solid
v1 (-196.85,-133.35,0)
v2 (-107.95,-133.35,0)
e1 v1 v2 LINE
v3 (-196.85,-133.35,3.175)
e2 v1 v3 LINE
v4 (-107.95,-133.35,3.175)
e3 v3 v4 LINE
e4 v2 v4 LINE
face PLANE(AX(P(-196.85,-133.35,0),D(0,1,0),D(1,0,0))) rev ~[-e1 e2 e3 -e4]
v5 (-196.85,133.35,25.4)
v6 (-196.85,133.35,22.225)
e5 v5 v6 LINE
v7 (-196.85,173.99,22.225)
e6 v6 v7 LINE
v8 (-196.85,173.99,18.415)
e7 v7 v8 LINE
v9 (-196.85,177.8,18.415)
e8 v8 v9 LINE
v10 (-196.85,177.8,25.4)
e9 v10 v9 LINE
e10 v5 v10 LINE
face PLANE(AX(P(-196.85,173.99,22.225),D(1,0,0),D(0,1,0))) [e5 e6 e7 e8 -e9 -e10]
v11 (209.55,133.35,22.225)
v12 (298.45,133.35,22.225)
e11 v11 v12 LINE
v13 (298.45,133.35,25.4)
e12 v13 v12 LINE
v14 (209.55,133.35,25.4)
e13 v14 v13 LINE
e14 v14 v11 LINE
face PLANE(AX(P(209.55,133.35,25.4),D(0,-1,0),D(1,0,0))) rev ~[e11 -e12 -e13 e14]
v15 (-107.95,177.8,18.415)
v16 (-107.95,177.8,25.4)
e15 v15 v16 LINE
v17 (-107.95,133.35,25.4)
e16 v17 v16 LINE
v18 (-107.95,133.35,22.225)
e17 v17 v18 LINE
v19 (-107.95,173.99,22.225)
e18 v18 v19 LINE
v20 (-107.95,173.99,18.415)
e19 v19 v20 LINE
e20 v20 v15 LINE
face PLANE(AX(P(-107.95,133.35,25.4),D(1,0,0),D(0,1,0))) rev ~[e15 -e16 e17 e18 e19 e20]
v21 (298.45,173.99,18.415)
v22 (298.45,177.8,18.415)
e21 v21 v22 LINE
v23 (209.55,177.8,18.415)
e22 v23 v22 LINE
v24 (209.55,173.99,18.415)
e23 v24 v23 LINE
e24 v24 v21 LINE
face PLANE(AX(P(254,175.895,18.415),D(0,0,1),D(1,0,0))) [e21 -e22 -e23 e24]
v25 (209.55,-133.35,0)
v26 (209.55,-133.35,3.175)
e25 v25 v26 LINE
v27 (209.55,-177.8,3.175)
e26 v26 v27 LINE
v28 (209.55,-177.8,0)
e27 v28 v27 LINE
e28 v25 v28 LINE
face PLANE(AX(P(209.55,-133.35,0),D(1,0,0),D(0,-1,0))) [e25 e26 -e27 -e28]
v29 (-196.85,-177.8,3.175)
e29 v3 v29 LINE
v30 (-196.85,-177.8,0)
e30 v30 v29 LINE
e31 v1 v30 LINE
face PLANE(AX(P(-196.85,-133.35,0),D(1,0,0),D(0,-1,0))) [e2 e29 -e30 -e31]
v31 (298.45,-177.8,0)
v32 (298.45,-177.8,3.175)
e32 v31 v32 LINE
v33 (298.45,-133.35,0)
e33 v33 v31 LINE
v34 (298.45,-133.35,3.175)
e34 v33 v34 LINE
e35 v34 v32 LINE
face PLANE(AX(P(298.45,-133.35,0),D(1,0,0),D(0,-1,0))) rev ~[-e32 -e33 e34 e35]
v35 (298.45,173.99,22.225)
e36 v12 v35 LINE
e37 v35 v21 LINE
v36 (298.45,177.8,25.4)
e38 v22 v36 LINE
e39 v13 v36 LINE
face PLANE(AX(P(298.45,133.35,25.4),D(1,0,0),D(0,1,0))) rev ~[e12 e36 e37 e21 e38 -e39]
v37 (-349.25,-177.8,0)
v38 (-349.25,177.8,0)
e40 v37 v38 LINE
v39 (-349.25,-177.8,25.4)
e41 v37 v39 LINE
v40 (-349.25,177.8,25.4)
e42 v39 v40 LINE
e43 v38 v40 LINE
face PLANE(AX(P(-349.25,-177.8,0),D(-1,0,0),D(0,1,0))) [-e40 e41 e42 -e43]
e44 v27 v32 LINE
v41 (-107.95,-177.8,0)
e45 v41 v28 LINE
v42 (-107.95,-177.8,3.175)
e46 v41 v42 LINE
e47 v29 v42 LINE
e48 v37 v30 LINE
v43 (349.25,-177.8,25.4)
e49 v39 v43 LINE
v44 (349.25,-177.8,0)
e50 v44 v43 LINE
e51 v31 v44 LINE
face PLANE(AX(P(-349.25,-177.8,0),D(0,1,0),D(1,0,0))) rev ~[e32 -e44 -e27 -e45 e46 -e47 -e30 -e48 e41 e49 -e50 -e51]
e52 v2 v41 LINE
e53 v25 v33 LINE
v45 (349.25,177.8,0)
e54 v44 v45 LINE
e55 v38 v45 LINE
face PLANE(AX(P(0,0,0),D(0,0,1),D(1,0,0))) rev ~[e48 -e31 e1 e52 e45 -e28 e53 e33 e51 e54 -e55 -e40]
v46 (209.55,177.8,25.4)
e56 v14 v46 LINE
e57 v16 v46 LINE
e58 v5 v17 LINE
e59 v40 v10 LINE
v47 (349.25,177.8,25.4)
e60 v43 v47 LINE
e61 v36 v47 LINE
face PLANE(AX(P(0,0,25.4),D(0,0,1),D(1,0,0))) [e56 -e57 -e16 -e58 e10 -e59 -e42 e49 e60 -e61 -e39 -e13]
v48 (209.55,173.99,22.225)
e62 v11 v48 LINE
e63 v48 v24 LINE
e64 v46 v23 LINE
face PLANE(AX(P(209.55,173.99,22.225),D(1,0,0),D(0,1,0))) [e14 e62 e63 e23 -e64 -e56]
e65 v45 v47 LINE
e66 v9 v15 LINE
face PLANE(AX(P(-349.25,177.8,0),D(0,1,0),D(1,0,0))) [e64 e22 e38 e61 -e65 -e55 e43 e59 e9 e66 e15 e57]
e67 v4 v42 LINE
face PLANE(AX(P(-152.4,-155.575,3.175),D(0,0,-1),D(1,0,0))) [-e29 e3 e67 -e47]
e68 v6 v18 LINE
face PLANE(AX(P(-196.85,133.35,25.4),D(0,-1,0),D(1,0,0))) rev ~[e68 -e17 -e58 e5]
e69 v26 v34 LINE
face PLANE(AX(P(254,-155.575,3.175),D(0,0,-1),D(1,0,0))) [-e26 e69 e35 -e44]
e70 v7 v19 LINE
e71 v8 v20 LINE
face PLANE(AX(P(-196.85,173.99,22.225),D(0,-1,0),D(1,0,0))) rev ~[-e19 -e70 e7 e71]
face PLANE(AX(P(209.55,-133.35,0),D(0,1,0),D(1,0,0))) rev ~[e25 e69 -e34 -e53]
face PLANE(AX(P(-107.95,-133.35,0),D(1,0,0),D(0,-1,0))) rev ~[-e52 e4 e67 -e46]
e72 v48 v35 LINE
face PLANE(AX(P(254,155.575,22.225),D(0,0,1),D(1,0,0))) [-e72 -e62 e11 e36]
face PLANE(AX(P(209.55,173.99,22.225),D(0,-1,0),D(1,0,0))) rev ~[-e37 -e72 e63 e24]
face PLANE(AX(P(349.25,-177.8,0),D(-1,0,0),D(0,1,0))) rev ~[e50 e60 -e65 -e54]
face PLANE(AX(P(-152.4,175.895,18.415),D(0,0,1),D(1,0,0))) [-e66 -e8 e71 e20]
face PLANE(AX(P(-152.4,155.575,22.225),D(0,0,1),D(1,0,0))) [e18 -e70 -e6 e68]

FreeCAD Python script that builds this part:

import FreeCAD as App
import Part
import Sketcher

V = App.Vector
Q = App.Units.Quantity

doc = App.newDocument("Part")
body = doc.addObject("PartDesign::Body", "Body")

# Sketch on XY plane
sketch1 = body.newObject("Sketcher::SketchObject", "Sketch")
sketch1.AttachmentSupport = (doc.getObject("XY_Plane"), [""])
sketch1.MapMode = "FlatFace"
sketch1.addGeometry([
    Part.LineSegment(V(-349, 178, 0), V(-349, -178, 0)),
    Part.LineSegment(V(-349, -178, 0), V(349, -178, 0)),
    Part.LineSegment(V(349, -178, 0), V(349, 178, 0)),
    Part.LineSegment(V(349, 178, 0), V(-349, 178, 0)),
], False)
sketch1.addConstraint([
    Sketcher.Constraint("Coincident", 0, 2, 1, 1),
    Sketcher.Constraint("Coincident", 1, 2, 2, 1),
    Sketcher.Constraint("Coincident", 2, 2, 3, 1),
    Sketcher.Constraint("Coincident", 3, 2, 0, 1),
    Sketcher.Constraint("Vertical", 0),
    Sketcher.Constraint("Horizontal", 1),
    Sketcher.Constraint("Vertical", 2),
    Sketcher.Constraint("Horizontal", 3),
    Sketcher.Constraint("Symmetric", 0, 2, 2, 2, -1, 1),
    Sketcher.Constraint("DistanceY", 0, 2, 0, 1, Q("14 in")),
    Sketcher.Constraint("DistanceX", 1, 1, 1, 2, Q("27.5 in")),
])
pad1 = body.newObject("PartDesign::Pad", "Pad")
pad1.Profile = sketch1
pad1.Length = Q("1 in")

# Sketch on XY plane
sketch2 = body.newObject("Sketcher::SketchObject", "Sketch001")
sketch2.AttachmentSupport = (doc.getObject("XY_Plane"), [""])
sketch2.MapMode = "FlatFace"
sketch2.AttachmentOffset = App.Placement(V(0, 0, 1 * 25.4), App.Rotation())
sketch2.addGeometry([
    Part.LineSegment(V(-197, 178, 0), V(-197, 133, 0)),  # 0
    Part.LineSegment(V(-197, 133, 0), V(-108, 133, 0)),  # 1
    Part.LineSegment(V(-108, 133, 0), V(-108, 178, 0)),  # 2
    Part.LineSegment(V(-108, 178, 0), V(-197, 178, 0)),  # 3
    Part.LineSegment(V(210, 178, 0), V(210, 133, 0)),  # 4
    Part.LineSegment(V(210, 133, 0), V(298, 133, 0)),  # 5
    Part.LineSegment(V(298, 133, 0), V(298, 178, 0)),  # 6
    Part.LineSegment(V(298, 178, 0), V(210, 178, 0)),  # 7
], False)
sketch2.addConstraint([
    Sketcher.Constraint("Coincident", 0, 2, 1, 1),
    Sketcher.Constraint("Coincident", 1, 2, 2, 1),
    Sketcher.Constraint("Coincident", 2, 2, 3, 1),
    Sketcher.Constraint("Coincident", 3, 2, 0, 1),
    Sketcher.Constraint("Coincident", 4, 2, 5, 1),
    Sketcher.Constraint("Coincident", 5, 2, 6, 1),
    Sketcher.Constraint("Coincident", 6, 2, 7, 1),
    Sketcher.Constraint("Coincident", 7, 2, 4, 1),
    Sketcher.Constraint("Vertical", 0),
    Sketcher.Constraint("Horizontal", 1),
    Sketcher.Constraint("Vertical", 2),
    Sketcher.Constraint("Horizontal", 3),
    Sketcher.Constraint("Vertical", 4),
    Sketcher.Constraint("Horizontal", 5),
    Sketcher.Constraint("Vertical", 6),
    Sketcher.Constraint("Horizontal", 7),
    Sketcher.Constraint("Horizontal", 1, 2, 4, 2),
    Sketcher.Constraint("Horizontal", 3, 2, 6, 2),
    Sketcher.Constraint("Equal", 3, 5),
    Sketcher.Constraint("DistanceX", 1, 1, 1, 2, Q("3.5 in")),
    Sketcher.Constraint("DistanceY", -1, 1, 2, 2, Q("7 in")),
    Sketcher.Constraint("DistanceX", 0, 2, 4, 2, Q("16 in")),
    Sketcher.Constraint("DistanceY", 0, 2, 0, 1, Q("1.75 in")),
    Sketcher.Constraint("DistanceX", 0, 2, -1, 1, Q("7.75 in")),
])
pocket1 = body.newObject("PartDesign::Pocket", "Pocket")
pocket1.Profile = sketch2
pocket1.Length = Q("0.125 in")

# Sketch on XY plane
sketch3 = body.newObject("Sketcher::SketchObject", "Sketch002")
sketch3.AttachmentSupport = (doc.getObject("XY_Plane"), [""])
sketch3.MapMode = "FlatFace"
sketch3.addGeometry([
    Part.LineSegment(V(210, -178, 0), V(210, -133, 0)),  # 0
    Part.LineSegment(V(210, -133, 0), V(298, -133, 0)),  # 1
    Part.LineSegment(V(298, -133, 0), V(298, -178, 0)),  # 2
    Part.LineSegment(V(298, -178, 0), V(210, -178, 0)),  # 3
    Part.LineSegment(V(-197, -178, 0), V(-197, -133, 0)),  # 4
    Part.LineSegment(V(-197, -133, 0), V(-108, -133, 0)),  # 5
    Part.LineSegment(V(-108, -133, 0), V(-108, -178, 0)),  # 6
    Part.LineSegment(V(-108, -178, 0), V(-197, -178, 0)),  # 7
], False)
sketch3.addConstraint([
    Sketcher.Constraint("Coincident", 0, 2, 1, 1),
    Sketcher.Constraint("Coincident", 1, 2, 2, 1),
    Sketcher.Constraint("Coincident", 2, 2, 3, 1),
    Sketcher.Constraint("Coincident", 3, 2, 0, 1),
    Sketcher.Constraint("Coincident", 4, 2, 5, 1),
    Sketcher.Constraint("Coincident", 5, 2, 6, 1),
    Sketcher.Constraint("Coincident", 6, 2, 7, 1),
    Sketcher.Constraint("Coincident", 7, 2, 4, 1),
    Sketcher.Constraint("Vertical", 0),
    Sketcher.Constraint("Horizontal", 1),
    Sketcher.Constraint("Vertical", 2),
    Sketcher.Constraint("Horizontal", 3),
    Sketcher.Constraint("Vertical", 4),
    Sketcher.Constraint("Horizontal", 5),
    Sketcher.Constraint("Vertical", 6),
    Sketcher.Constraint("Horizontal", 7),
    Sketcher.Constraint("Horizontal", 1, 2, 4, 2),
    Sketcher.Constraint("Horizontal", 3, 2, 6, 2),
    Sketcher.Constraint("Equal", 3, 5),
    Sketcher.Constraint("DistanceX", 1, 1, 1, 2, Q("3.5 in")),
    Sketcher.Constraint("DistanceY", 2, 2, -1, 1, Q("7 in")),
    Sketcher.Constraint("DistanceX", 4, 2, 0, 2, Q("16 in")),
    Sketcher.Constraint("DistanceY", 0, 1, 0, 2, Q("1.75 in")),
    Sketcher.Constraint("DistanceX", -1, 1, 0, 2, Q("8.25 in")),
])
pocket2 = body.newObject("PartDesign::Pocket", "Pocket001")
pocket2.Profile = sketch3
pocket2.Length = Q("0.125 in")
pocket2.Reversed = True

# Sketch on XY plane
sketch4 = body.newObject("Sketcher::SketchObject", "Sketch003")
sketch4.AttachmentSupport = (doc.getObject("XY_Plane"), [""])
sketch4.MapMode = "FlatFace"
sketch4.AttachmentOffset = App.Placement(V(0, 0, 0.875 * 25.4), App.Rotation())
sketch4.addGeometry([
    Part.LineSegment(V(-196.8, 177.8, 0), V(-196.8, 174, 0)),
    Part.LineSegment(V(-196.8, 174, 0), V(-108, 174, 0)),
    Part.LineSegment(V(-108, 174, 0), V(-108, 177.8, 0)),
    Part.LineSegment(V(-108, 177.8, 0), V(-196.8, 177.8, 0)),
], False)
sketch4.addConstraint([
    Sketcher.Constraint("Coincident", 0, 2, 1, 1),
    Sketcher.Constraint("Coincident", 1, 2, 2, 1),
    Sketcher.Constraint("Coincident", 2, 2, 3, 1),
    Sketcher.Constraint("Coincident", 3, 2, 0, 1),
    Sketcher.Constraint("Vertical", 0),
    Sketcher.Constraint("Horizontal", 1),
    Sketcher.Constraint("Vertical", 2),
    Sketcher.Constraint("Horizontal", 3),
    Sketcher.Constraint("DistanceX", 1, 1, 1, 2, Q("3.5 in")),
    Sketcher.Constraint("DistanceY", -1, 1, 2, 2, Q("7 in")),
    Sketcher.Constraint("DistanceY", 0, 2, 0, 1, Q("0.15 in")),
    Sketcher.Constraint("DistanceX", 0, 2, -1, 1, Q("7.75 in")),
])
pocket3 = body.newObject("PartDesign::Pocket", "Pocket002")
pocket3.Profile = sketch4
pocket3.Length = Q("0.15 in")

# Sketch on XY plane
sketch5 = body.newObject("Sketcher::SketchObject", "Sketch004")
sketch5.AttachmentSupport = (doc.getObject("XY_Plane"), [""])
sketch5.MapMode = "FlatFace"
sketch5.AttachmentOffset = App.Placement(V(0, 0, 0.875 * 25.4), App.Rotation())
sketch5.addGeometry([
    Part.LineSegment(V(209.6, 177.8, 0), V(209.6, 174, 0)),
    Part.LineSegment(V(209.6, 174, 0), V(298.4, 174, 0)),
    Part.LineSegment(V(298.4, 174, 0), V(298.4, 177.8, 0)),
    Part.LineSegment(V(298.4, 177.8, 0), V(209.6, 177.8, 0)),
], False)
sketch5.addConstraint([
    Sketcher.Constraint("Coincident", 0, 2, 1, 1),
    Sketcher.Constraint("Coincident", 1, 2, 2, 1),
    Sketcher.Constraint("Coincident", 2, 2, 3, 1),
    Sketcher.Constraint("Coincident", 3, 2, 0, 1),
    Sketcher.Constraint("Vertical", 0),
    Sketcher.Constraint("Horizontal", 1),
    Sketcher.Constraint("Vertical", 2),
    Sketcher.Constraint("Horizontal", 3),
    Sketcher.Constraint("DistanceX", 1, 1, 1, 2, Q("3.5 in")),
    Sketcher.Constraint("DistanceY", -1, 1, 2, 2, Q("7 in")),
    Sketcher.Constraint("DistanceY", 0, 2, 0, 1, Q("0.15 in")),
    Sketcher.Constraint("DistanceX", -1, 1, 0, 2, Q("8.25 in")),
])
pocket4 = body.newObject("PartDesign::Pocket", "Pocket003")
pocket4.Profile = sketch5
pocket4.Length = Q("0.15 in")

doc.recompute()
